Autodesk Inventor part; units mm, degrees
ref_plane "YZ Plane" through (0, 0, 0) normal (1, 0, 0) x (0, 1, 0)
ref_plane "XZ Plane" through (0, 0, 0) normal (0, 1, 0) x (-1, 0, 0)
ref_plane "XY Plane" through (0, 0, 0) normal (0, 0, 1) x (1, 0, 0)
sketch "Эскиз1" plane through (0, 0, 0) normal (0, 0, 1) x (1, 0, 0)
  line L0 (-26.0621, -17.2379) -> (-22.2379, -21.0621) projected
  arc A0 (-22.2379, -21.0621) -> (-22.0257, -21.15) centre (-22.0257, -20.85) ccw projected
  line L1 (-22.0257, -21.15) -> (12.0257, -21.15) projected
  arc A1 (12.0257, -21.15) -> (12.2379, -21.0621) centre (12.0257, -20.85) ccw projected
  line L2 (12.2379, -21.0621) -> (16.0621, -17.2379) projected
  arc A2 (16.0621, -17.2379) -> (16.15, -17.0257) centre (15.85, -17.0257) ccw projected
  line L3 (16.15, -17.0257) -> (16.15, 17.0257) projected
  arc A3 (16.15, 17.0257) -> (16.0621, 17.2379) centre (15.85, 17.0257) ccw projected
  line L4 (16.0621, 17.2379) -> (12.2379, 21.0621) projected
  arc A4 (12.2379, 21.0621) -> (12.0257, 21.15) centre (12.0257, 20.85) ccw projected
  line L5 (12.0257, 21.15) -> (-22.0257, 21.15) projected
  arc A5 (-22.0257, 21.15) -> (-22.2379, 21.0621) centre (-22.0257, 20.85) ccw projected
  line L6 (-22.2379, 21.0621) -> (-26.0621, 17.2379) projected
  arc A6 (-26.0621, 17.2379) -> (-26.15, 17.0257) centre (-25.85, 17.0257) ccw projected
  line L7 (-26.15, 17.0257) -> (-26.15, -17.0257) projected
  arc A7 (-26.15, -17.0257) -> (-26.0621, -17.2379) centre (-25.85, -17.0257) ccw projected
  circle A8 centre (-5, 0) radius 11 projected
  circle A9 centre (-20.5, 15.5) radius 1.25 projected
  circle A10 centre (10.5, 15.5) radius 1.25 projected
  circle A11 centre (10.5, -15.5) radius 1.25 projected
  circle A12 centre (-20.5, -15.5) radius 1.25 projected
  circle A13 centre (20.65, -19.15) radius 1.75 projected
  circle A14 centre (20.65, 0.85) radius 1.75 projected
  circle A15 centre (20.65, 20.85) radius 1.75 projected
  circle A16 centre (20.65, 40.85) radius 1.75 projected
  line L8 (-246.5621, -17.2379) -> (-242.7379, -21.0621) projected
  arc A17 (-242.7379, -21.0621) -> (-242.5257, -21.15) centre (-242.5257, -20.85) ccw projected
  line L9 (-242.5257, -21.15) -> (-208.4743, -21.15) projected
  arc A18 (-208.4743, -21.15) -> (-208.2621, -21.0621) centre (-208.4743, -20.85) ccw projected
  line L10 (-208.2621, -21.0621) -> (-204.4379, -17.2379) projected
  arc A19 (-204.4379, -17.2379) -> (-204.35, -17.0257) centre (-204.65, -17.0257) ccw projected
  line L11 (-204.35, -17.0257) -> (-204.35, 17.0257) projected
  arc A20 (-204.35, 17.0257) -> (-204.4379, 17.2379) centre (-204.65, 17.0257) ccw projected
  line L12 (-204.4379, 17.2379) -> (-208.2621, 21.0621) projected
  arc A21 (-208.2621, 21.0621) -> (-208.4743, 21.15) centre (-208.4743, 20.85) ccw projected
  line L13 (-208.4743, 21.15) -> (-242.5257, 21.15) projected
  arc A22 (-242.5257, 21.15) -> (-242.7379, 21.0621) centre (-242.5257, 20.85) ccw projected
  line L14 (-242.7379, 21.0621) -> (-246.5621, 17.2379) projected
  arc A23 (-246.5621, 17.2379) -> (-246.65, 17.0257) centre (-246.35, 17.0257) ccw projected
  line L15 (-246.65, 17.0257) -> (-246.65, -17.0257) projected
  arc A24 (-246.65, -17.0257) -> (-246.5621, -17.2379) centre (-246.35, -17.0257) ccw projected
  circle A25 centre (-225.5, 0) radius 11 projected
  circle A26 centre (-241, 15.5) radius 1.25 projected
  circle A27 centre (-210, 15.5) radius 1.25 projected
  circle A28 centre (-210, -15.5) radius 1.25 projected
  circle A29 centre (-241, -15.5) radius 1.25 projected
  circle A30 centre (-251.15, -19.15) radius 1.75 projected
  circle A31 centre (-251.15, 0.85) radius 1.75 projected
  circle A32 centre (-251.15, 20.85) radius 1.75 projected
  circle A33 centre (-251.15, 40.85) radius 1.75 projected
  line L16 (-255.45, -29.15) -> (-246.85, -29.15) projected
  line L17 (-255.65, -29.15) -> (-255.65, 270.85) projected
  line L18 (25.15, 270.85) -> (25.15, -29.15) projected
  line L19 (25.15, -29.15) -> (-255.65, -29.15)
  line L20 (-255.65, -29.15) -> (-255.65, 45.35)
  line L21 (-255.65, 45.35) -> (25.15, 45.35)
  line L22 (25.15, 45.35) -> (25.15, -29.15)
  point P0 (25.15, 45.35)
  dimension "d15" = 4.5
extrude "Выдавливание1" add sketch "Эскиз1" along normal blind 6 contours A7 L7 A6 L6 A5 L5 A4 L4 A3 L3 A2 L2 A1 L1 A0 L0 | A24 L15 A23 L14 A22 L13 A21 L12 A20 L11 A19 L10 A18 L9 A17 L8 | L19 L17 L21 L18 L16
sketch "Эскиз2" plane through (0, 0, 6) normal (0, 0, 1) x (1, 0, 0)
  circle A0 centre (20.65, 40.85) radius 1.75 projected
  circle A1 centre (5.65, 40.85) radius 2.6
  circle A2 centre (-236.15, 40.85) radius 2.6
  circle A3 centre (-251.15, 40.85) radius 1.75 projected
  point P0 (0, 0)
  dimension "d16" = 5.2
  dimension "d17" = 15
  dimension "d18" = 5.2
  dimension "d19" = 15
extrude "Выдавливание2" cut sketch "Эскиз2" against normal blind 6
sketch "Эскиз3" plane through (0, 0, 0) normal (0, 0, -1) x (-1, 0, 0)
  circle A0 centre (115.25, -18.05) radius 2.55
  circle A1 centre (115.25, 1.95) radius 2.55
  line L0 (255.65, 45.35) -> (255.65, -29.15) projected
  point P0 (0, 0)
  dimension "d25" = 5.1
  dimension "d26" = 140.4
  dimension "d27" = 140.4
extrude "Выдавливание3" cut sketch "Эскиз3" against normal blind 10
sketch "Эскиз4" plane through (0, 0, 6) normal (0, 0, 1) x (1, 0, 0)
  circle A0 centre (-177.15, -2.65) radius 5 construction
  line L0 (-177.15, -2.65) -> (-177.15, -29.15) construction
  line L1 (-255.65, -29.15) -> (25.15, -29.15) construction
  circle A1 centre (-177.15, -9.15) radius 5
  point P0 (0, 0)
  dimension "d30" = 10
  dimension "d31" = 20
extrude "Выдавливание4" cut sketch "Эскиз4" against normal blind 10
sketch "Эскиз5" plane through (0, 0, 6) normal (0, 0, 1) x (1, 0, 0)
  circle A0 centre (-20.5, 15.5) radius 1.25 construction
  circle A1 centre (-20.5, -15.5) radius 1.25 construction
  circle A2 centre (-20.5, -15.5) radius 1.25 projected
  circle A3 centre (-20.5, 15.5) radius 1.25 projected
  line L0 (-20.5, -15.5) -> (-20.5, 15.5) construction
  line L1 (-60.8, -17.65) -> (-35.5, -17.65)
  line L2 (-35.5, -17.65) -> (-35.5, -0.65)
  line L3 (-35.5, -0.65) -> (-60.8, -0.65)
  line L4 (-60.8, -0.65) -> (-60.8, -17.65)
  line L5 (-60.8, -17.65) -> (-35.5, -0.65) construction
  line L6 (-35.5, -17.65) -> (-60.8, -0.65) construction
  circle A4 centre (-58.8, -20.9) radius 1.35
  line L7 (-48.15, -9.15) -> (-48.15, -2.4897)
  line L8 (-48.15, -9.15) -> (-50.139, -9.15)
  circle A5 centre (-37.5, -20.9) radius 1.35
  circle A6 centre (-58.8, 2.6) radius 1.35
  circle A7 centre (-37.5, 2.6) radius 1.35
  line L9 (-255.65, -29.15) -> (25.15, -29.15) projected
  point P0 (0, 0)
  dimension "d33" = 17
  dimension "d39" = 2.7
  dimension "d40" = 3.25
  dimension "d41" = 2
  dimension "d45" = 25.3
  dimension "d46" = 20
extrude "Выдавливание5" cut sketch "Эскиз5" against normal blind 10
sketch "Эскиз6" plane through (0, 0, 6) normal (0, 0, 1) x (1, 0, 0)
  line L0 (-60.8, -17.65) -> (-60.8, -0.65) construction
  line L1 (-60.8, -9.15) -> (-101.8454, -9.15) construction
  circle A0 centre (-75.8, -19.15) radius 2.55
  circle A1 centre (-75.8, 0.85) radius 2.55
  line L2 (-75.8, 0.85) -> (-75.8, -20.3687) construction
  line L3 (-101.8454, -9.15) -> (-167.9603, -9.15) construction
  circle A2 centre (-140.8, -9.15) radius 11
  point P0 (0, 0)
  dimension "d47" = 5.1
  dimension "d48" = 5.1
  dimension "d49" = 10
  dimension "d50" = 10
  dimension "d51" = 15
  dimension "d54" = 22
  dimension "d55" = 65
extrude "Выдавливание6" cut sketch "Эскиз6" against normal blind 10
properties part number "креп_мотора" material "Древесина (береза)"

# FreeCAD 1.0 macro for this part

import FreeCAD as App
import Part
import Sketcher
Q = App.Units.Quantity

doc = App.newDocument("Part")
body = doc.addObject("PartDesign::Body", "Body")

sketch1 = body.newObject("Sketcher::SketchObject", "Sketch")
sketch1.AttachmentSupport = (doc.getObject("XY_Plane"), [""])
sketch1.MapMode = "FlatFace"
sketch1.addGeometry([
    Part.LineSegment(App.Vector(-255.7, -29.1, 0), App.Vector(25.1, -29.1, 0)),
    Part.LineSegment(App.Vector(25.1, -29.1, 0), App.Vector(25.1, 45.4, 0)),
    Part.LineSegment(App.Vector(25.1, 45.4, 0), App.Vector(-255.7, 45.4, 0)),
    Part.LineSegment(App.Vector(-255.7, 45.4, 0), App.Vector(-255.7, -29.1, 0)),
    Part.Circle(App.Vector(-20.5, -15.5, 0), App.Vector(0, 0, 1), 1.2),
    Part.Circle(App.Vector(10.5, -15.5, 0), App.Vector(0, 0, 1), 1.2),
    Part.Circle(App.Vector(-5, 0, 0), App.Vector(0, 0, 1), 11),
    Part.Circle(App.Vector(-20.5, 15.5, 0), App.Vector(0, 0, 1), 1.2),
    Part.Circle(App.Vector(10.5, 15.5, 0), App.Vector(0, 0, 1), 1.2),
    Part.Circle(App.Vector(-251.2, -19.1, 0), App.Vector(0, 0, 1), 1.8),
    Part.Circle(App.Vector(-251.2, 0.8, 0), App.Vector(0, 0, 1), 1.8),
    Part.Circle(App.Vector(20.6, -19.1, 0), App.Vector(0, 0, 1), 1.8),
    Part.Circle(App.Vector(20.6, 40.9, 0), App.Vector(0, 0, 1), 1.8),
    Part.Circle(App.Vector(20.6, 0.8, 0), App.Vector(0, 0, 1), 1.8),
    Part.Circle(App.Vector(-251.2, 20.9, 0), App.Vector(0, 0, 1), 1.8),
    Part.Circle(App.Vector(-251.2, 40.9, 0), App.Vector(0, 0, 1), 1.8),
    Part.Circle(App.Vector(20.6, 20.9, 0), App.Vector(0, 0, 1), 1.8),
    Part.Circle(App.Vector(-210, 15.5, 0), App.Vector(0, 0, 1), 1.2),
    Part.Circle(App.Vector(-241, -15.5, 0), App.Vector(0, 0, 1), 1.2),
    Part.Circle(App.Vector(-210, -15.5, 0), App.Vector(0, 0, 1), 1.2),
    Part.Circle(App.Vector(-225.5, 0, 0), App.Vector(0, 0, 1), 11),
    Part.Circle(App.Vector(-241, 15.5, 0), App.Vector(0, 0, 1), 1.2),
], False)
sketch1.addConstraint([
    Sketcher.Constraint("Coincident", 0, 2, 1, 1),
    Sketcher.Constraint("Coincident", 1, 2, 2, 1),
    Sketcher.Constraint("Coincident", 2, 2, 3, 1),
    Sketcher.Constraint("Coincident", 3, 2, 0, 1),
    Sketcher.Constraint("Horizontal", 0),
    Sketcher.Constraint("Vertical", 1),
    Sketcher.Constraint("Horizontal", 2),
    Sketcher.Constraint("Vertical", 3),
    Sketcher.Constraint("Equal", 4, 5),
    Sketcher.Constraint("Equal", 5, 7),
    Sketcher.Constraint("Equal", 7, 8),
    Sketcher.Constraint("Equal", 9, 10),
    Sketcher.Constraint("Equal", 10, 11),
    Sketcher.Constraint("Equal", 11, 12),
    Sketcher.Constraint("Equal", 12, 13),
    Sketcher.Constraint("Equal", 13, 14),
    Sketcher.Constraint("Equal", 14, 15),
    Sketcher.Constraint("Equal", 15, 16),
    Sketcher.Constraint("Equal", 8, 17),
    Sketcher.Constraint("Equal", 17, 18),
    Sketcher.Constraint("Equal", 18, 19),
    Sketcher.Constraint("Equal", 6, 20),
    Sketcher.Constraint("Equal", 19, 21),
    Sketcher.Constraint("Symmetric", 4, 3, 7, 3, -1),
    Sketcher.Constraint("Symmetric", 5, 3, 8, 3, -1),
    Sketcher.Constraint("Symmetric", 17, 3, 19, 3, -1),
    Sketcher.Constraint("Symmetric", 18, 3, 21, 3, -1),
    Sketcher.Constraint("PointOnObject", 6, 3, -1),
    Sketcher.Constraint("PointOnObject", 20, 3, -1),
    Sketcher.Constraint("Horizontal", 4, 3, 5, 3),
    Sketcher.Constraint("Horizontal", 9, 3, 11, 3),
    Sketcher.Constraint("Horizontal", 10, 3, 13, 3),
    Sketcher.Constraint("Horizontal", 12, 3, 15, 3),
    Sketcher.Constraint("Horizontal", 14, 3, 16, 3),
    Sketcher.Constraint("Horizontal", 8, 3, 17, 3),
    Sketcher.Constraint("Horizontal", 5, 3, 18, 3),
    Sketcher.Constraint("Vertical", 9, 3, 10, 3),
    Sketcher.Constraint("Vertical", 11, 3, 12, 3),
    Sketcher.Constraint("Vertical", 12, 3, 13, 3),
    Sketcher.Constraint("Vertical", 10, 3, 14, 3),
    Sketcher.Constraint("Vertical", 14, 3, 15, 3),
    Sketcher.Constraint("Vertical", 13, 3, 16, 3),
    Sketcher.Constraint("Diameter", 6, Q("22 mm")),
    Sketcher.Constraint("Diameter", 4, Q("2.5 mm")),
    Sketcher.Constraint("Diameter", 9, Q("3.5 mm")),
    Sketcher.Constraint("DistanceX", 11, 3, 0, 2, Q("4.5 mm")),
    Sketcher.Constraint("DistanceY", 12, 3, 1, 2, Q("4.5 mm")),
    Sketcher.Constraint("DistanceX", 2, 2, 15, 3, Q("4.5 mm")),
    Sketcher.Constraint("DistanceX", 0, 1, 0, 2, Q("280.8 mm")),
    Sketcher.Constraint("DistanceY", 1, 1, 1, 2, Q("74.5 mm")),
    Sketcher.Constraint("DistanceX", 6, 3, -1, 1, Q("5 mm")),
    Sketcher.Constraint("DistanceX", 17, 3, -1, 1, Q("210 mm")),
    Sketcher.Constraint("DistanceX", 18, 3, -1, 1, Q("241 mm")),
    Sketcher.Constraint("DistanceX", 4, 3, 5, 3, Q("31 mm")),
    Sketcher.Constraint("DistanceY", 4, 3, 7, 3, Q("31 mm")),
    Sketcher.Constraint("DistanceY", 9, 3, 10, 3, Q("20 mm")),
    Sketcher.Constraint("DistanceY", 11, 3, 12, 3, Q("60 mm")),
    Sketcher.Constraint("DistanceY", 10, 3, 14, 3, Q("20 mm")),
    Sketcher.Constraint("DistanceX", 4, 3, -1, 1, Q("20.5 mm")),
    Sketcher.Constraint("DistanceX", 20, 3, -1, 1, Q("225.5 mm")),
    Sketcher.Constraint("DistanceX", 9, 3, -1, 1, Q("251.15 mm")),
    Sketcher.Constraint("DistanceY", 9, 3, -1, 1, Q("19.15 mm")),
])
pad1 = body.newObject("PartDesign::Pad", "Pad")
pad1.Profile = sketch1
pad1.Length = 6

sketch2 = body.newObject("Sketcher::SketchObject", "Sketch001")
sketch2.AttachmentSupport = (doc.getObject("XY_Plane"), [""])
sketch2.MapMode = "FlatFace"
sketch2.AttachmentOffset = App.Placement(App.Vector(0, 0, 6), App.Rotation())
sketch2.addGeometry([
    Part.Circle(App.Vector(20.6, 40.9, 0), App.Vector(0, 0, 1), 1.8),
    Part.Circle(App.Vector(5.7, 40.9, 0), App.Vector(0, 0, 1), 2.6),
    Part.Circle(App.Vector(-236.2, 40.9, 0), App.Vector(0, 0, 1), 2.6),
    Part.Circle(App.Vector(-251.2, 40.9, 0), App.Vector(0, 0, 1), 1.8),
], False)
sketch2.addConstraint([
    Sketcher.Constraint("Equal", 1, 2),
    Sketcher.Constraint("Equal", 0, 3),
    Sketcher.Constraint("Horizontal", 0, 3, 1, 3),
    Sketcher.Constraint("Horizontal", 1, 3, 2, 3),
    Sketcher.Constraint("Horizontal", 2, 3, 3, 3),
    Sketcher.Constraint("Diameter", 1, Q("5.2 mm")),
    Sketcher.Constraint("DistanceX", 1, 3, 0, 3, Q("15 mm")),
    Sketcher.Constraint("DistanceX", 3, 3, 2, 3, Q("15 mm")),
    Sketcher.Constraint("Diameter", 0, Q("3.5 mm")),
    Sketcher.Constraint("DistanceX", 2, 3, 1, 3, Q("241.8 mm")),
    Sketcher.Constraint("DistanceX", -1, 1, 0, 3, Q("20.65 mm")),
    Sketcher.Constraint("DistanceY", -1, 1, 0, 3, Q("40.85 mm")),
])
pocket1 = body.newObject("PartDesign::Pocket", "Pocket")
pocket1.Profile = sketch2
pocket1.Length = 6

sketch3 = body.newObject("Sketcher::SketchObject", "Sketch002")
sketch3.AttachmentSupport = (doc.getObject("XY_Plane"), [""])
sketch3.MapMode = "FlatFace"
sketch3.addGeometry([
    Part.Circle(App.Vector(-115.2, -18.1, 0), App.Vector(0, 0, 1), 2.5),
    Part.Circle(App.Vector(-115.2, 1.9, 0), App.Vector(0, 0, 1), 2.5),
], False)
sketch3.addConstraint([
    Sketcher.Constraint("Equal", 0, 1),
    Sketcher.Constraint("Vertical", 0, 3, 1, 3),
    Sketcher.Constraint("Diameter", 0, Q("5.1 mm")),
    Sketcher.Constraint("DistanceY", 0, 3, 1, 3, Q("20 mm")),
    Sketcher.Constraint("DistanceX", 0, 3, -1, 1, Q("115.25 mm")),
    Sketcher.Constraint("DistanceY", 0, 3, -1, 1, Q("18.05 mm")),
])
pocket2 = body.newObject("PartDesign::Pocket", "Pocket001")
pocket2.Profile = sketch3
pocket2.Length = 10
pocket2.Reversed = True

sketch4 = body.newObject("Sketcher::SketchObject", "Sketch003")
sketch4.AttachmentSupport = (doc.getObject("XY_Plane"), [""])
sketch4.MapMode = "FlatFace"
sketch4.AttachmentOffset = App.Placement(App.Vector(0, 0, 6), App.Rotation())
sketch4.addGeometry(Part.Circle(App.Vector(-177, -9, 0), App.Vector(0, 0, 1), 5), False)
sketch4.addConstraint([
    Sketcher.Constraint("Diameter", 0, Q("10 mm")),
    Sketcher.Constraint("DistanceX", 0, 3, -1, 1, Q("177.15 mm")),
    Sketcher.Constraint("DistanceY", 0, 3, -1, 1, Q("9.15 mm")),
])
pocket3 = body.newObject("PartDesign::Pocket", "Pocket002")
pocket3.Profile = sketch4
pocket3.Length = 10

sketch5 = body.newObject("Sketcher::SketchObject", "Sketch004")
sketch5.AttachmentSupport = (doc.getObject("XY_Plane"), [""])
sketch5.MapMode = "FlatFace"
sketch5.AttachmentOffset = App.Placement(App.Vector(0, 0, 6), App.Rotation())
sketch5.addGeometry([
    Part.Circle(App.Vector(-20.5, -15.5, 0), App.Vector(0, 0, 1), 1.2),
    Part.Circle(App.Vector(-20.5, 15.5, 0), App.Vector(0, 0, 1), 1.2),
    Part.LineSegment(App.Vector(-60.8, -0.7, 0), App.Vector(-60.8, -17.6, 0)),
    Part.LineSegment(App.Vector(-60.8, -17.6, 0), App.Vector(-35.5, -17.6, 0)),
    Part.LineSegment(App.Vector(-35.5, -17.6, 0), App.Vector(-35.5, -0.7, 0)),
    Part.LineSegment(App.Vector(-35.5, -0.7, 0), App.Vector(-60.8, -0.7, 0)),
    Part.Circle(App.Vector(-58.8, -20.9, 0), App.Vector(0, 0, 1), 1.4),
    Part.Circle(App.Vector(-37.5, -20.9, 0), App.Vector(0, 0, 1), 1.4),
    Part.Circle(App.Vector(-58.8, 2.6, 0), App.Vector(0, 0, 1), 1.4),
    Part.Circle(App.Vector(-37.5, 2.6, 0), App.Vector(0, 0, 1), 1.4),
], False)
sketch5.addConstraint([
    Sketcher.Constraint("Coincident", 2, 2, 3, 1),
    Sketcher.Constraint("Coincident", 3, 2, 4, 1),
    Sketcher.Constraint("Coincident", 4, 2, 5, 1),
    Sketcher.Constraint("Coincident", 5, 2, 2, 1),
    Sketcher.Constraint("Vertical", 2),
    Sketcher.Constraint("Horizontal", 3),
    Sketcher.Constraint("Vertical", 4),
    Sketcher.Constraint("Horizontal", 5),
    Sketcher.Constraint("Equal", 0, 1),
    Sketcher.Constraint("Equal", 6, 7),
    Sketcher.Constraint("Equal", 7, 8),
    Sketcher.Constraint("Equal", 8, 9),
    Sketcher.Constraint("Symmetric", 0, 3, 1, 3, -1),
    Sketcher.Constraint("Horizontal", 6, 3, 7, 3),
    Sketcher.Constraint("Horizontal", 8, 3, 9, 3),
    Sketcher.Constraint("Vertical", 6, 3, 8, 3),
    Sketcher.Constraint("Vertical", 7, 3, 9, 3),
    Sketcher.Constraint("Diameter", 6, Q("2.7 mm")),
    Sketcher.Constraint("DistanceY", 2, 2, 2, 1, Q("17 mm")),
    Sketcher.Constraint("DistanceX", 3, 1, 3, 2, Q("25.3 mm")),
    Sketcher.Constraint("DistanceX", 7, 3, 0, 3, Q("17 mm")),
    Sketcher.Constraint("DistanceX", 2, 2, 6, 3, Q("2 mm")),
    Sketcher.Constraint("DistanceX", 7, 3, 3, 2, Q("2 mm")),
    Sketcher.Constraint("Diameter", 0, Q("2.5 mm")),
    Sketcher.Constraint("DistanceY", 6, 3, 2, 2, Q("3.25 mm")),
    Sketcher.Constraint("DistanceY", 4, 2, 9, 3, Q("3.25 mm")),
    Sketcher.Constraint("DistanceY", 0, 3, 1, 3, Q("31 mm")),
    Sketcher.Constraint("DistanceX", 0, 3, -1, 1, Q("20.5 mm")),
    Sketcher.Constraint("DistanceY", 6, 3, -1, 1, Q("20.9 mm")),
])
pocket4 = body.newObject("PartDesign::Pocket", "Pocket003")
pocket4.Profile = sketch5
pocket4.Length = 10

sketch6 = body.newObject("Sketcher::SketchObject", "Sketch005")
sketch6.AttachmentSupport = (doc.getObject("XY_Plane"), [""])
sketch6.MapMode = "FlatFace"
sketch6.AttachmentOffset = App.Placement(App.Vector(0, 0, 6), App.Rotation())
sketch6.addGeometry([
    Part.Circle(App.Vector(-75.8, -19.1, 0), App.Vector(0, 0, 1), 2.5),
    Part.Circle(App.Vector(-75.8, 0.8, 0), App.Vector(0, 0, 1), 2.5),
    Part.Circle(App.Vector(-140.8, -9.2, 0), App.Vector(0, 0, 1), 11),
], False)
sketch6.addConstraint([
    Sketcher.Constraint("Equal", 0, 1),
    Sketcher.Constraint("Vertical", 0, 3, 1, 3),
    Sketcher.Constraint("Diameter", 2, Q("22 mm")),
    Sketcher.Constraint("Diameter", 0, Q("5.1 mm")),
    Sketcher.Constraint("DistanceX", 2, 3, 0, 3, Q("65 mm")),
    Sketcher.Constraint("DistanceY", 0, 3, 2, 3, Q("10 mm")),
    Sketcher.Constraint("DistanceY", 2, 3, 1, 3, Q("10 mm")),
    Sketcher.Constraint("DistanceX", 0, 3, -1, 1, Q("75.8 mm")),
    Sketcher.Constraint("DistanceY", 0, 3, -1, 1, Q("19.15 mm")),
])
pocket5 = body.newObject("PartDesign::Pocket", "Pocket004")
pocket5.Profile = sketch6
pocket5.Length = 10

doc.recompute()
